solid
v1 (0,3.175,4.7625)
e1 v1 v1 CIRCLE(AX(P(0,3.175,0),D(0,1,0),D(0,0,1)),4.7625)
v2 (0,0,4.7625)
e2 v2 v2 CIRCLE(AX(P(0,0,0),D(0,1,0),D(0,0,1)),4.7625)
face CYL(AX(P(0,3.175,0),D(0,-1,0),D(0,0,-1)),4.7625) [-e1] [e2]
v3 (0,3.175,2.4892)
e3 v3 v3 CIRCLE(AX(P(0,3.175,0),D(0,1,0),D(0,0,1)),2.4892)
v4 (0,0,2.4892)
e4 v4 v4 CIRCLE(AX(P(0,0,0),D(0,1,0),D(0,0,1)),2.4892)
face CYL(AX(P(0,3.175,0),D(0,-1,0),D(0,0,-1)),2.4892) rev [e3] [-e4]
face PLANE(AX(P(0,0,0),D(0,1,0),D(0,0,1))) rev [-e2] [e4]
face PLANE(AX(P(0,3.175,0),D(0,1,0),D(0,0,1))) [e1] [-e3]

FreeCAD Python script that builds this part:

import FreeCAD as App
import Part
import Sketcher
from FreeCAD import Vector
Q = App.Units.Quantity

doc = App.newDocument("Part")
body = doc.addObject("PartDesign::Body", "Body")

sketch1 = body.newObject("Sketcher::SketchObject", "Sketch")
sketch1.AttachmentSupport = (doc.getObject("XZ_Plane"), [""])
sketch1.MapMode = "FlatFace"
sketch1.addGeometry(Part.Circle(Vector(0, 0, 0), Vector(0, 0, 1), 4.8), False)
sketch1.addGeometry(Part.Circle(Vector(0, 0, 0), Vector(0, 0, 1), 2.5), False)
sketch1.addConstraint(Sketcher.Constraint("Coincident", 0, 3, -1, 1))
sketch1.addConstraint(Sketcher.Constraint("Coincident", 1, 3, -1, 1))
sketch1.addConstraint(Sketcher.Constraint("Diameter", 0, Q("0.375 in")))
sketch1.addConstraint(Sketcher.Constraint("Diameter", 1, Q("0.196 in")))
pad1 = body.newObject("PartDesign::Pad", "Pad")
pad1.Profile = sketch1
pad1.Length = Q("0.125 in")
pad1.Reversed = True

doc.recompute()
